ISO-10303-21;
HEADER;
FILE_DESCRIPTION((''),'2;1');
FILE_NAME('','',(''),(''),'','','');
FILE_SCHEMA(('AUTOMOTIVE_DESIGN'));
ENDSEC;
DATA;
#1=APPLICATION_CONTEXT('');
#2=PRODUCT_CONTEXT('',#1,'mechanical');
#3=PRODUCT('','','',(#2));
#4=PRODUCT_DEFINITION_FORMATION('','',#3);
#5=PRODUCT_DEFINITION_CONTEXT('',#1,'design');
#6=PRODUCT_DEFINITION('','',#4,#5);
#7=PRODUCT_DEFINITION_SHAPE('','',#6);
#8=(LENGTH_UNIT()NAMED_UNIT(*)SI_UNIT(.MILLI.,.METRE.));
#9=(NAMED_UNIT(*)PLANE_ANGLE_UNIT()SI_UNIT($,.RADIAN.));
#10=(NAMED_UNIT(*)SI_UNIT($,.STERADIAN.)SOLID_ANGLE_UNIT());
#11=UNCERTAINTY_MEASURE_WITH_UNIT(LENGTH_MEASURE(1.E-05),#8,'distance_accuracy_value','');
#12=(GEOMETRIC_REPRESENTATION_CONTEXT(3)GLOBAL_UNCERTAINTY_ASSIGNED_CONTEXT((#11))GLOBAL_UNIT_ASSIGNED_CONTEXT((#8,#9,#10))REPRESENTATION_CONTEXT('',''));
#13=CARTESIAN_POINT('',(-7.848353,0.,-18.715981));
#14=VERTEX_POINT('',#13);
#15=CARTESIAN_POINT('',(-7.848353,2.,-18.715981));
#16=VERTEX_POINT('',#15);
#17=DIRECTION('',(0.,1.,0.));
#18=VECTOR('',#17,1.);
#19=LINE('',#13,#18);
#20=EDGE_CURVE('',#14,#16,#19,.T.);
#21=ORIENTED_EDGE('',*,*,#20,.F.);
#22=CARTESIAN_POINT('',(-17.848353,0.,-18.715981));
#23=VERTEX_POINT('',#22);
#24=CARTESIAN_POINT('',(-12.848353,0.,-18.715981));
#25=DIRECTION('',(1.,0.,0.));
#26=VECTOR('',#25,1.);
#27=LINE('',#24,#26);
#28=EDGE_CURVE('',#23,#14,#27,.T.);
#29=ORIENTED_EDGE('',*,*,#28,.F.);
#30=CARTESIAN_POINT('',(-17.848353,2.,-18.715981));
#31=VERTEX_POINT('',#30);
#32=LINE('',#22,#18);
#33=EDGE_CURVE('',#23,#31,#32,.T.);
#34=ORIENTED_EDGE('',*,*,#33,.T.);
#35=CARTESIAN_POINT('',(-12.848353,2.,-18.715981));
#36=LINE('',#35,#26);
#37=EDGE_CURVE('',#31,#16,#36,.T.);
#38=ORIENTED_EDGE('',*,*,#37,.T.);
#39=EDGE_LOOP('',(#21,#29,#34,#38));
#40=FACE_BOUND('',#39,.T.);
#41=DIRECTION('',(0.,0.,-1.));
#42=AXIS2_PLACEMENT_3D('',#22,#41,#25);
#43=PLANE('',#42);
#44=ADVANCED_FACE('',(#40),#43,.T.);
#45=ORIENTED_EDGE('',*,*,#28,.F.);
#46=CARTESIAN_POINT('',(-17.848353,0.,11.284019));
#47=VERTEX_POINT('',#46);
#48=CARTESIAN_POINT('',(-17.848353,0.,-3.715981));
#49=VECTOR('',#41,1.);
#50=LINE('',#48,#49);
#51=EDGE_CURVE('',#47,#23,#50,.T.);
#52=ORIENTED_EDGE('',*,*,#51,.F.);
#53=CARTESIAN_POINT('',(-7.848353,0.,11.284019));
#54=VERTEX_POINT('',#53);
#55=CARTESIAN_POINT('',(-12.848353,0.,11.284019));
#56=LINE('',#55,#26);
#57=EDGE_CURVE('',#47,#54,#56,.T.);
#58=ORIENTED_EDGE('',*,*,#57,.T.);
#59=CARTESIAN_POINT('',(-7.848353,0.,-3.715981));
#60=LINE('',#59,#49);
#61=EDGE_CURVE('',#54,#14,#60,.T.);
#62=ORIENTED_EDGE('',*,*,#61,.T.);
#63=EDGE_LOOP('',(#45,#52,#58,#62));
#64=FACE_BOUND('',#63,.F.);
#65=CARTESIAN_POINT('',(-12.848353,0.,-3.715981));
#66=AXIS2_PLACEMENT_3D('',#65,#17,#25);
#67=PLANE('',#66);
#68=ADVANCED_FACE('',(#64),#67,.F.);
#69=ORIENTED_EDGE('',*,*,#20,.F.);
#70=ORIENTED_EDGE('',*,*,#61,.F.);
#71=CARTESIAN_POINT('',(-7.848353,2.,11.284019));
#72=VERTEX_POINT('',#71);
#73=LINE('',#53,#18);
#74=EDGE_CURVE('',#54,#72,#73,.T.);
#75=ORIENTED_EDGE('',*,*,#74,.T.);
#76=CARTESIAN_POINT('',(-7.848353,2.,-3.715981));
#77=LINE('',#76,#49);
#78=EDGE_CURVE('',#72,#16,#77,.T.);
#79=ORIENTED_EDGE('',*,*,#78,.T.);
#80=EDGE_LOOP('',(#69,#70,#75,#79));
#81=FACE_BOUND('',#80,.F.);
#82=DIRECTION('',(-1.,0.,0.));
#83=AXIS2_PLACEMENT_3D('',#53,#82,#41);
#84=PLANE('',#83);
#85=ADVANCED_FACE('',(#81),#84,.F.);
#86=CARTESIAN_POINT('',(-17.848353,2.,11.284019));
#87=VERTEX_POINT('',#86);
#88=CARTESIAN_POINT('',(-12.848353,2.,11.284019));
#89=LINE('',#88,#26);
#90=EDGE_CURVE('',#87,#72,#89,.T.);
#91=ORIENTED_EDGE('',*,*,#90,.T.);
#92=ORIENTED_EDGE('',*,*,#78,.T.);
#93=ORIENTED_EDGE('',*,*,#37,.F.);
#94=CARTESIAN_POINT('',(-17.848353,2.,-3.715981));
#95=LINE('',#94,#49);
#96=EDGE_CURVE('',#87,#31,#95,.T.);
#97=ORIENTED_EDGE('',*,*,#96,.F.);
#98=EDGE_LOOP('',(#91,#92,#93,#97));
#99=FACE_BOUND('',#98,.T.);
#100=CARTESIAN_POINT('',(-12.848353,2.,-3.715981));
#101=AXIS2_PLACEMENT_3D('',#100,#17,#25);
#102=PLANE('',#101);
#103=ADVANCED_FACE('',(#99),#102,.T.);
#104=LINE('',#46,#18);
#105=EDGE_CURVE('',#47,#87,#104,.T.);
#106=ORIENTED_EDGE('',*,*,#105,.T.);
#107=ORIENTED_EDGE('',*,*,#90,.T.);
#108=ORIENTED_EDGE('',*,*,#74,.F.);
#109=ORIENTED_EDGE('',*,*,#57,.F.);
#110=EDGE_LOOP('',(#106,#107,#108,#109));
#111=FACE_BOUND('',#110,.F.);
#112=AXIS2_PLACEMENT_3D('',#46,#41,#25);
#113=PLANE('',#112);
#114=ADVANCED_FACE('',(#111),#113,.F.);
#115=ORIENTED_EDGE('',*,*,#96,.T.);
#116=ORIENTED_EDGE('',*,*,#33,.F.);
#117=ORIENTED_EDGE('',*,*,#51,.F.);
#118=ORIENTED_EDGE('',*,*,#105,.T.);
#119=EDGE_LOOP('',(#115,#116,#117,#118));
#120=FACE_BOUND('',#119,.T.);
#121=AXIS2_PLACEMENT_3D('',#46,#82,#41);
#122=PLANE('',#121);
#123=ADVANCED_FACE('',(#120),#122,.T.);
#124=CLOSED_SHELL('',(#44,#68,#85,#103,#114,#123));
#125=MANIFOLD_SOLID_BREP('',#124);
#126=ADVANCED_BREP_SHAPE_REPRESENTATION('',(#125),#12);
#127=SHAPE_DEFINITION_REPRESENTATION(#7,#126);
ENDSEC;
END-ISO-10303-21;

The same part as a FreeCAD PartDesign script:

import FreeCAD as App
import Part
import Sketcher
from FreeCAD import Vector
Q = App.Units.Quantity

doc = App.newDocument("Part")
body = doc.addObject("PartDesign::Body", "Body")

sketch1 = body.newObject("Sketcher::SketchObject", "Sketch")
sketch1.AttachmentSupport = (doc.getObject("XZ_Plane"), [""])
sketch1.MapMode = "FlatFace"
sketch1.addGeometry(Part.LineSegment(Vector(-17.848353, -18.715981, 0), Vector(-17.848353, 11.284019, 0)), False)
sketch1.addGeometry(Part.LineSegment(Vector(-17.848353, 11.284019, 0), Vector(-7.848353, 11.284019, 0)), False)
sketch1.addGeometry(Part.LineSegment(Vector(-7.848353, 11.284019, 0), Vector(-7.848353, -18.715981, 0)), False)
sketch1.addGeometry(Part.LineSegment(Vector(-7.848353, -18.715981, 0), Vector(-17.848353, -18.715981, 0)), False)
sketch1.addConstraint(Sketcher.Constraint("Coincident", 0, 2, 1, 1))
sketch1.addConstraint(Sketcher.Constraint("Coincident", 1, 2, 2, 1))
sketch1.addConstraint(Sketcher.Constraint("Coincident", 2, 2, 3, 1))
sketch1.addConstraint(Sketcher.Constraint("Coincident", 3, 2, 0, 1))
sketch1.addConstraint(Sketcher.Constraint("Vertical", 0))
sketch1.addConstraint(Sketcher.Constraint("Horizontal", 1))
sketch1.addConstraint(Sketcher.Constraint("Vertical", 2))
sketch1.addConstraint(Sketcher.Constraint("Horizontal", 3))
sketch1.addConstraint(Sketcher.Constraint("DistanceX", 1, 1, 1, 2, Q("10 mm")))
sketch1.addConstraint(Sketcher.Constraint("DistanceY", 0, 1, 0, 2, Q("30 mm")))
sketch1.addConstraint(Sketcher.Constraint("DistanceY", -1, 1, 0, 2, Q("11.284019 mm")))
sketch1.addConstraint(Sketcher.Constraint("DistanceX", 0, 2, -1, 1, Q("17.848353 mm")))
pad1 = body.newObject("PartDesign::Pad", "Pad")
pad1.Profile = sketch1
pad1.Length = 2
pad1.Reversed = True

doc.recompute()
